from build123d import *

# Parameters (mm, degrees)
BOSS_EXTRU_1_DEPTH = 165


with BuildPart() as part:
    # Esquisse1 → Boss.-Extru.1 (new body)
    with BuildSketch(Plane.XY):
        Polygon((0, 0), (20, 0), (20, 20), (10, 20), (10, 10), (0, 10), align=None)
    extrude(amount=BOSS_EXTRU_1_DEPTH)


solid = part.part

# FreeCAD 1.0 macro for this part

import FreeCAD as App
import Part
import Sketcher

V = App.Vector


def add_polygon(sketch, points):
    """Adds a closed chain of lines whose ends are joined by coincident constraints."""
    first, n = sketch.GeometryCount, len(points)
    for a, b in zip(points, points[1:] + points[:1]):
        sketch.addGeometry(Part.LineSegment(App.Vector(*a, 0), App.Vector(*b, 0)), False)
    for i in range(n):
        sketch.addConstraint(Sketcher.Constraint("Coincident", first + i, 2, first + (i + 1) % n, 1))

doc = App.newDocument("Part")
body = doc.addObject("PartDesign::Body", "Body")

sketch1 = body.newObject("Sketcher::SketchObject", "Sketch")
sketch1.AttachmentSupport = (doc.getObject("XY_Plane"), [""])
sketch1.MapMode = "FlatFace"
add_polygon(sketch1, [(0, 0), (20, 0), (20, 20), (10, 20), (10, 10), (0, 10)])
sketch1.addConstraint([
    Sketcher.Constraint("Horizontal", 0),
    Sketcher.Constraint("Vertical", 1),
    Sketcher.Constraint("Horizontal", 2),
    Sketcher.Constraint("Vertical", 3),
    Sketcher.Constraint("Horizontal", 4),
    Sketcher.Constraint("Vertical", 5),
    Sketcher.Constraint("Coincident", 5, 2, -1, 1),
    Sketcher.Constraint("Equal", 2, 4),
    Sketcher.Constraint("Equal", 0, 1),
    Sketcher.Constraint("Equal", 4, 3),
    Sketcher.Constraint("DistanceX", 0, 1, 0, 2, 20.0),
])
pad1 = body.newObject("PartDesign::Pad", "Pad")
pad1.Profile = sketch1
pad1.Length = 165

doc.recompute()
